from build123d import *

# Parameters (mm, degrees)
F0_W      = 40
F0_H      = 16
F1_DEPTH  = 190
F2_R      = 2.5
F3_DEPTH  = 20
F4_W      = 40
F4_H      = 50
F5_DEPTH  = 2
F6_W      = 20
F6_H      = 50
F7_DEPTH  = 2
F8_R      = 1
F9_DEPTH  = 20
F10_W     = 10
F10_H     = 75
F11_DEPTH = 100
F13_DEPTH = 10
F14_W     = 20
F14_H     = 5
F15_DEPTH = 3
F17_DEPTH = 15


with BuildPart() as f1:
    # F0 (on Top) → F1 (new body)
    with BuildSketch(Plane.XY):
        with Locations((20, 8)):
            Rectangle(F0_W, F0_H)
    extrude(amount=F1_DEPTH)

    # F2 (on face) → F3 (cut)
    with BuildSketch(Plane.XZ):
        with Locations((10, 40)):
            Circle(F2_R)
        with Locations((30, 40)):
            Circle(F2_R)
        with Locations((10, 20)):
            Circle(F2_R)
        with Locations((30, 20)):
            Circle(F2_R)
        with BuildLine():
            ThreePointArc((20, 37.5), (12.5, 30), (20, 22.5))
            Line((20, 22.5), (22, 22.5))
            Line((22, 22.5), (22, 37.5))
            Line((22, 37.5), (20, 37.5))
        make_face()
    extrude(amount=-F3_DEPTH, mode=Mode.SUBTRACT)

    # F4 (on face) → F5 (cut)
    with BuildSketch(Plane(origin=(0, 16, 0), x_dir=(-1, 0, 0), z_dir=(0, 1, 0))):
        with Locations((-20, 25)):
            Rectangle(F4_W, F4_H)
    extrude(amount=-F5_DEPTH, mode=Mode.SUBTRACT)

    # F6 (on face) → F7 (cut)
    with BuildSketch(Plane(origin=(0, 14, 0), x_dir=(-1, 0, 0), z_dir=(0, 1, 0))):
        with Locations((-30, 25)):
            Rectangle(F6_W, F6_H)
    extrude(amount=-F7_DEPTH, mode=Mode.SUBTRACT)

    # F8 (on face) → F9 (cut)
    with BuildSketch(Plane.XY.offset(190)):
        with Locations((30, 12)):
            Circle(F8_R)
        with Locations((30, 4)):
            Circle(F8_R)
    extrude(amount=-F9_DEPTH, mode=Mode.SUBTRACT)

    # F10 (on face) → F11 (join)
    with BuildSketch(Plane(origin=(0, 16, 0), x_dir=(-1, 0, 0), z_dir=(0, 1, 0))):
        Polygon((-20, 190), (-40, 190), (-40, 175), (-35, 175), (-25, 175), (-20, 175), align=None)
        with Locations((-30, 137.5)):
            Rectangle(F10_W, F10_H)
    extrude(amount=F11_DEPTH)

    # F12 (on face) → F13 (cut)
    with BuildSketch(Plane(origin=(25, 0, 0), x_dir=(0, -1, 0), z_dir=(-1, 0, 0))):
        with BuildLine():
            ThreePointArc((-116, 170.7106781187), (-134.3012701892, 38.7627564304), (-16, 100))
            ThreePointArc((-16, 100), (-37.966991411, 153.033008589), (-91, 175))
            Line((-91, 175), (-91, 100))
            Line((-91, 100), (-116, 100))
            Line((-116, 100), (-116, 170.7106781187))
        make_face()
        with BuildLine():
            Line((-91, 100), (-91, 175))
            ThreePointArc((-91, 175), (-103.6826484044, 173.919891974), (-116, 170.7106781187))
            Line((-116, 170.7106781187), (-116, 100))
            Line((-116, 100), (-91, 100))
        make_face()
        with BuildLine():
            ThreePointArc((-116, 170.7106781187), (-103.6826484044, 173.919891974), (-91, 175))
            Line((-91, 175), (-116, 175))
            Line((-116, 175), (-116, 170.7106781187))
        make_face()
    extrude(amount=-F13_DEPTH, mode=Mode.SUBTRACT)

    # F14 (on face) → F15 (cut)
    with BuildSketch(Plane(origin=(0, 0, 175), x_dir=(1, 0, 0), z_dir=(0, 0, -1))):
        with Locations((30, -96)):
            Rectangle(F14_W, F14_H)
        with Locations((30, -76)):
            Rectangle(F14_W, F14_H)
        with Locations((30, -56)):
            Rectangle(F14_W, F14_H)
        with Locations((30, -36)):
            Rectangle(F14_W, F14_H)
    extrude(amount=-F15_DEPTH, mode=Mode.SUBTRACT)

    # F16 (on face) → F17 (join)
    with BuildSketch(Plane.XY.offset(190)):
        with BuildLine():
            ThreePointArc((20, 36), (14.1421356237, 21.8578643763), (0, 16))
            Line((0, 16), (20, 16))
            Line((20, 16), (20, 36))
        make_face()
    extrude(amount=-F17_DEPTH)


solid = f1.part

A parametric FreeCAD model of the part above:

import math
import FreeCAD as App
import Part
import Sketcher
Q = App.Units.Quantity

doc = App.newDocument("Part")
params = doc.addObject("Spreadsheet::Sheet", "Params")
for row, (alias, value) in enumerate([
    ("sketch1_width", "40 mm"),
    ("sketch1_height", "16 mm"),
    ("pad1_length", "190 mm"),
    ("sketch2_diameter", "5 mm"),
    ("sketch2_radius", "7.5 mm"),
    ("sketch2_width", "2 mm"),
    ("pocket1_length", "20 mm"),
    ("sketch3_width", "40 mm"),
    ("sketch3_height", "50 mm"),
    ("pocket2_length", "2 mm"),
    ("sketch4_width", "20 mm"),
    ("sketch4_height", "50 mm"),
    ("pocket3_length", "2 mm"),
    ("sketch5_diameter", "2 mm"),
    ("pocket4_length", "20 mm"),
    ("sketch6_width", "20 mm"),
    ("sketch6_width2", "5 mm"),
    ("sketch6_height", "15 mm"),
    ("sketch6_height2", "75 mm"),
    ("pad2_length", "100 mm"),
    ("sketch7_radius", "75 mm"),
    ("sketch7_width", "25 mm"),
    ("pocket5_length", "10 mm"),
    ("sketch8_width", "20 mm"),
    ("sketch8_height", "5 mm"),
    ("pocket6_length", "3 mm"),
    ("sketch9_radius", "20 mm"),
    ("pad3_length", "15 mm"),
], start=1):
    params.set(f"A{row}", alias)
    params.set(f"B{row}", "=" + value)
    params.setAlias(f"B{row}", alias)

body = doc.addObject("PartDesign::Body", "Body")

# Sketch on XY plane
sketch1 = body.newObject("Sketcher::SketchObject", "Sketch")
sketch1.AttachmentSupport = (doc.getObject("XY_Plane"), [""])
sketch1.MapMode = "FlatFace"
sketch1.addGeometry([
    Part.LineSegment(App.Vector(0, 16, 0), App.Vector(0, 0, 0)),
    Part.LineSegment(App.Vector(0, 0, 0), App.Vector(40, 0, 0)),
    Part.LineSegment(App.Vector(40, 0, 0), App.Vector(40, 16, 0)),
    Part.LineSegment(App.Vector(40, 16, 0), App.Vector(0, 16, 0)),
], False)
sketch1.addConstraint([
    Sketcher.Constraint("Coincident", 0, 2, 1, 1),
    Sketcher.Constraint("Coincident", 1, 2, 2, 1),
    Sketcher.Constraint("Coincident", 2, 2, 3, 1),
    Sketcher.Constraint("Coincident", 3, 2, 0, 1),
    Sketcher.Constraint("Vertical", 0),
    Sketcher.Constraint("Horizontal", 1),
    Sketcher.Constraint("Vertical", 2),
    Sketcher.Constraint("Horizontal", 3),
    Sketcher.Constraint("Coincident", 0, 2, -1, 1),
    Sketcher.Constraint("DistanceX", 1, 1, 1, 2, Q("40 mm")),
    Sketcher.Constraint("DistanceY", 0, 2, 0, 1, Q("16 mm")),
])
sketch1.setExpression("Constraints[9]", "Params.sketch1_width")
sketch1.setExpression("Constraints[10]", "Params.sketch1_height")
pad1 = body.newObject("PartDesign::Pad", "Pad")
pad1.Profile = sketch1
pad1.setExpression("Length", "Params.pad1_length")

# Sketch on XZ plane
sketch2 = body.newObject("Sketcher::SketchObject", "Sketch001")
sketch2.AttachmentSupport = (doc.getObject("XZ_Plane"), [""])
sketch2.MapMode = "FlatFace"
sketch2.addGeometry([
    Part.Circle(App.Vector(10, 40, 0), App.Vector(0, 0, 1), 2.5),  # 0
    Part.Circle(App.Vector(30, 40, 0), App.Vector(0, 0, 1), 2.5),  # 1
    Part.Circle(App.Vector(10, 20, 0), App.Vector(0, 0, 1), 2.5),  # 2
    Part.Circle(App.Vector(30, 20, 0), App.Vector(0, 0, 1), 2.5),  # 3
    Part.ArcOfCircle(Part.Circle(App.Vector(20, 30, 0), App.Vector(0, 0, 1), 7.5), math.radians(90), math.radians(270)),  # 4
    Part.LineSegment(App.Vector(20, 22.5, 0), App.Vector(22, 22.5, 0)),  # 5
    Part.LineSegment(App.Vector(22, 22.5, 0), App.Vector(22, 37.5, 0)),  # 6
    Part.LineSegment(App.Vector(22, 37.5, 0), App.Vector(20, 37.5, 0)),  # 7
], False)
sketch2.addConstraint([
    Sketcher.Constraint("Tangent", 4, 2, 5, 1),
    Sketcher.Constraint("Coincident", 5, 2, 6, 1),
    Sketcher.Constraint("Coincident", 6, 2, 7, 1),
    Sketcher.Constraint("Tangent", 7, 2, 4, 1),
    Sketcher.Constraint("Horizontal", 5),
    Sketcher.Constraint("Vertical", 6),
    Sketcher.Constraint("Horizontal", 7),
    Sketcher.Constraint("Equal", 0, 1),
    Sketcher.Constraint("Equal", 1, 2),
    Sketcher.Constraint("Equal", 2, 3),
    Sketcher.Constraint("Horizontal", 0, 3, 1, 3),
    Sketcher.Constraint("Horizontal", 2, 3, 3, 3),
    Sketcher.Constraint("Vertical", 0, 3, 2, 3),
    Sketcher.Constraint("Vertical", 1, 3, 3, 3),
    Sketcher.Constraint("Diameter", 0, Q("5 mm")),
    Sketcher.Constraint("Radius", 4, Q("7.5 mm")),
    Sketcher.Constraint("DistanceX", 5, 1, 5, 2, Q("2 mm")),
    Sketcher.Constraint("DistanceX", -1, 1, 0, 3, Q("10 mm")),
    Sketcher.Constraint("DistanceY", -1, 1, 0, 3, Q("40 mm")),
    Sketcher.Constraint("DistanceX", -1, 1, 1, 3, Q("30 mm")),
    Sketcher.Constraint("DistanceY", -1, 1, 2, 3, Q("20 mm")),
    Sketcher.Constraint("DistanceX", -1, 1, 4, 3, Q("20 mm")),
    Sketcher.Constraint("DistanceY", -1, 1, 4, 3, Q("30 mm")),
])
sketch2.setExpression("Constraints[14]", "Params.sketch2_diameter")
sketch2.setExpression("Constraints[15]", "Params.sketch2_radius")
sketch2.setExpression("Constraints[16]", "Params.sketch2_width")
pocket1 = body.newObject("PartDesign::Pocket", "Pocket")
pocket1.Profile = sketch2
pocket1.setExpression("Length", "Params.pocket1_length")

# Sketch on XZ plane
sketch3 = body.newObject("Sketcher::SketchObject", "Sketch002")
sketch3.AttachmentSupport = (doc.getObject("XZ_Plane"), [""])
sketch3.MapMode = "FlatFace"
sketch3.AttachmentOffset = App.Placement(App.Vector(0, 0, -16), App.Rotation())
sketch3.addGeometry([
    Part.LineSegment(App.Vector(40, 50, 0), App.Vector(40, 0, 0)),
    Part.LineSegment(App.Vector(40, 0, 0), App.Vector(0, 0, 0)),
    Part.LineSegment(App.Vector(0, 0, 0), App.Vector(0, 50, 0)),
    Part.LineSegment(App.Vector(0, 50, 0), App.Vector(40, 50, 0)),
], False)
sketch3.addConstraint([
    Sketcher.Constraint("Coincident", 0, 2, 1, 1),
    Sketcher.Constraint("Coincident", 1, 2, 2, 1),
    Sketcher.Constraint("Coincident", 2, 2, 3, 1),
    Sketcher.Constraint("Coincident", 3, 2, 0, 1),
    Sketcher.Constraint("Vertical", 0),
    Sketcher.Constraint("Horizontal", 1),
    Sketcher.Constraint("Vertical", 2),
    Sketcher.Constraint("Horizontal", 3),
    Sketcher.Constraint("Coincident", 1, 2, -1, 1),
    Sketcher.Constraint("DistanceX", 1, 2, 1, 1, Q("40 mm")),
    Sketcher.Constraint("DistanceY", 0, 2, 0, 1, Q("50 mm")),
])
sketch3.setExpression("Constraints[9]", "Params.sketch3_width")
sketch3.setExpression("Constraints[10]", "Params.sketch3_height")
pocket2 = body.newObject("PartDesign::Pocket", "Pocket001")
pocket2.Profile = sketch3
pocket2.setExpression("Length", "Params.pocket2_length")
pocket2.Reversed = True

# Sketch on XZ plane
sketch4 = body.newObject("Sketcher::SketchObject", "Sketch003")
sketch4.AttachmentSupport = (doc.getObject("XZ_Plane"), [""])
sketch4.MapMode = "FlatFace"
sketch4.AttachmentOffset = App.Placement(App.Vector(0, 0, -14), App.Rotation())
sketch4.addGeometry([
    Part.LineSegment(App.Vector(40, 50, 0), App.Vector(40, 0, 0)),
    Part.LineSegment(App.Vector(40, 0, 0), App.Vector(20, 0, 0)),
    Part.LineSegment(App.Vector(20, 0, 0), App.Vector(20, 50, 0)),
    Part.LineSegment(App.Vector(20, 50, 0), App.Vector(40, 50, 0)),
], False)
sketch4.addConstraint([
    Sketcher.Constraint("Coincident", 0, 2, 1, 1),
    Sketcher.Constraint("Coincident", 1, 2, 2, 1),
    Sketcher.Constraint("Coincident", 2, 2, 3, 1),
    Sketcher.Constraint("Coincident", 3, 2, 0, 1),
    Sketcher.Constraint("Vertical", 0),
    Sketcher.Constraint("Horizontal", 1),
    Sketcher.Constraint("Vertical", 2),
    Sketcher.Constraint("Horizontal", 3),
    Sketcher.Constraint("PointOnObject", 0, 2, -1),
    Sketcher.Constraint("DistanceX", 1, 2, 1, 1, Q("20 mm")),
    Sketcher.Constraint("DistanceY", 0, 2, 0, 1, Q("50 mm")),
    Sketcher.Constraint("DistanceX", -1, 1, 0, 2, Q("40 mm")),
])
sketch4.setExpression("Constraints[9]", "Params.sketch4_width")
sketch4.setExpression("Constraints[10]", "Params.sketch4_height")
pocket3 = body.newObject("PartDesign::Pocket", "Pocket002")
pocket3.Profile = sketch4
pocket3.setExpression("Length", "Params.pocket3_length")
pocket3.Reversed = True

# Sketch on XY plane
sketch5 = body.newObject("Sketcher::SketchObject", "Sketch004")
sketch5.AttachmentSupport = (doc.getObject("XY_Plane"), [""])
sketch5.MapMode = "FlatFace"
sketch5.AttachmentOffset = App.Placement(App.Vector(0, 0, 190), App.Rotation())
sketch5.addGeometry([
    Part.Circle(App.Vector(30, 12, 0), App.Vector(0, 0, 1), 1),
    Part.Circle(App.Vector(30, 4, 0), App.Vector(0, 0, 1), 1),
], False)
sketch5.addConstraint([
    Sketcher.Constraint("Equal", 0, 1),
    Sketcher.Constraint("Vertical", 0, 3, 1, 3),
    Sketcher.Constraint("Diameter", 0, Q("2 mm")),
    Sketcher.Constraint("DistanceX", -1, 1, 0, 3, Q("30 mm")),
    Sketcher.Constraint("DistanceY", -1, 1, 0, 3, Q("12 mm")),
    Sketcher.Constraint("DistanceY", -1, 1, 1, 3, Q("4 mm")),
])
sketch5.setExpression("Constraints[2]", "Params.sketch5_diameter")
pocket4 = body.newObject("PartDesign::Pocket", "Pocket003")
pocket4.Profile = sketch5
pocket4.setExpression("Length", "Params.pocket4_length")

# Sketch on XZ plane
sketch6 = body.newObject("Sketcher::SketchObject", "Sketch005")
sketch6.AttachmentSupport = (doc.getObject("XZ_Plane"), [""])
sketch6.MapMode = "FlatFace"
sketch6.AttachmentOffset = App.Placement(App.Vector(0, 0, -16), App.Rotation())
sketch6.addGeometry([
    Part.LineSegment(App.Vector(20, 190, 0), App.Vector(40, 190, 0)),  # 0
    Part.LineSegment(App.Vector(40, 190, 0), App.Vector(40, 175, 0)),  # 1
    Part.LineSegment(App.Vector(40, 175, 0), App.Vector(35, 175, 0)),  # 2
    Part.LineSegment(App.Vector(35, 175, 0), App.Vector(35, 100, 0)),  # 3
    Part.LineSegment(App.Vector(35, 100, 0), App.Vector(25, 100, 0)),  # 4
    Part.LineSegment(App.Vector(25, 100, 0), App.Vector(25, 175, 0)),  # 5
    Part.LineSegment(App.Vector(25, 175, 0), App.Vector(20, 175, 0)),  # 6
    Part.LineSegment(App.Vector(20, 175, 0), App.Vector(20, 190, 0)),  # 7
], False)
sketch6.addConstraint([
    Sketcher.Constraint("Coincident", 0, 2, 1, 1),
    Sketcher.Constraint("Coincident", 1, 2, 2, 1),
    Sketcher.Constraint("Coincident", 2, 2, 3, 1),
    Sketcher.Constraint("Coincident", 3, 2, 4, 1),
    Sketcher.Constraint("Coincident", 4, 2, 5, 1),
    Sketcher.Constraint("Coincident", 5, 2, 6, 1),
    Sketcher.Constraint("Coincident", 6, 2, 7, 1),
    Sketcher.Constraint("Coincident", 7, 2, 0, 1),
    Sketcher.Constraint("Horizontal", 0),
    Sketcher.Constraint("Vertical", 1),
    Sketcher.Constraint("Horizontal", 2),
    Sketcher.Constraint("Vertical", 3),
    Sketcher.Constraint("Horizontal", 4),
    Sketcher.Constraint("Vertical", 5),
    Sketcher.Constraint("Horizontal", 6),
    Sketcher.Constraint("Vertical", 7),
    Sketcher.Constraint("Horizontal", 2, 2, 5, 2),
    Sketcher.Constraint("Equal", 2, 6),
    Sketcher.Constraint("DistanceX", 0, 1, 0, 2, Q("20 mm")),
    Sketcher.Constraint("DistanceX", 2, 2, 2, 1, Q("5 mm")),
    Sketcher.Constraint("DistanceY", 1, 2, 1, 1, Q("15 mm")),
    Sketcher.Constraint("DistanceY", 3, 2, 3, 1, Q("75 mm")),
    Sketcher.Constraint("DistanceX", -1, 1, 0, 2, Q("40 mm")),
    Sketcher.Constraint("DistanceY", -1, 1, 0, 2, Q("190 mm")),
])
sketch6.setExpression("Constraints[18]", "Params.sketch6_width")
sketch6.setExpression("Constraints[19]", "Params.sketch6_width2")
sketch6.setExpression("Constraints[20]", "Params.sketch6_height")
sketch6.setExpression("Constraints[21]", "Params.sketch6_height2")
pad2 = body.newObject("PartDesign::Pad", "Pad001")
pad2.Profile = sketch6
pad2.setExpression("Length", "Params.pad2_length")
pad2.Reversed = True

# Sketch on YZ plane
sketch7 = body.newObject("Sketcher::SketchObject", "Sketch006")
sketch7.AttachmentSupport = (doc.getObject("YZ_Plane"), [""])
sketch7.MapMode = "FlatFace"
sketch7.AttachmentOffset = App.Placement(App.Vector(0, 0, 25), App.Rotation())
sketch7.addGeometry([
    Part.ArcOfCircle(Part.Circle(App.Vector(91, 100, 0), App.Vector(0, 0, 1), 75), math.radians(90), math.radians(430.528779)),
    Part.LineSegment(App.Vector(91, 175, 0), App.Vector(116, 175, 0)),
    Part.LineSegment(App.Vector(116, 175, 0), App.Vector(116, 170.710678, 0)),
], False)
sketch7.addConstraint([
    Sketcher.Constraint("Tangent", 0, 1, 1, 1),
    Sketcher.Constraint("Coincident", 1, 2, 2, 1),
    Sketcher.Constraint("Coincident", 2, 2, 0, 2),
    Sketcher.Constraint("Horizontal", 1),
    Sketcher.Constraint("Vertical", 2),
    Sketcher.Constraint("Radius", 0, Q("75 mm")),
    Sketcher.Constraint("DistanceX", 1, 1, 1, 2, Q("25 mm")),
    Sketcher.Constraint("DistanceX", -1, 1, 0, 3, Q("91 mm")),
    Sketcher.Constraint("DistanceY", -1, 1, 0, 3, Q("100 mm")),
])
sketch7.setExpression("Constraints[5]", "Params.sketch7_radius")
sketch7.setExpression("Constraints[6]", "Params.sketch7_width")
pocket5 = body.newObject("PartDesign::Pocket", "Pocket004")
pocket5.Profile = sketch7
pocket5.setExpression("Length", "Params.pocket5_length")
pocket5.Reversed = True

# Sketch on XY plane
sketch8 = body.newObject("Sketcher::SketchObject", "Sketch007")
sketch8.AttachmentSupport = (doc.getObject("XY_Plane"), [""])
sketch8.MapMode = "FlatFace"
sketch8.AttachmentOffset = App.Placement(App.Vector(0, 0, 175), App.Rotation())
sketch8.addGeometry([
    Part.LineSegment(App.Vector(20, 93.5, 0), App.Vector(20, 98.5, 0)),  # 0
    Part.LineSegment(App.Vector(20, 98.5, 0), App.Vector(40, 98.5, 0)),  # 1
    Part.LineSegment(App.Vector(40, 98.5, 0), App.Vector(40, 93.5, 0)),  # 2
    Part.LineSegment(App.Vector(40, 93.5, 0), App.Vector(20, 93.5, 0)),  # 3
    Part.LineSegment(App.Vector(20, 73.5, 0), App.Vector(20, 78.5, 0)),  # 4
    Part.LineSegment(App.Vector(20, 78.5, 0), App.Vector(40, 78.5, 0)),  # 5
    Part.LineSegment(App.Vector(40, 78.5, 0), App.Vector(40, 73.5, 0)),  # 6
    Part.LineSegment(App.Vector(40, 73.5, 0), App.Vector(20, 73.5, 0)),  # 7
    Part.LineSegment(App.Vector(20, 53.5, 0), App.Vector(20, 58.5, 0)),  # 8
    Part.LineSegment(App.Vector(20, 58.5, 0), App.Vector(40, 58.5, 0)),  # 9
    Part.LineSegment(App.Vector(40, 58.5, 0), App.Vector(40, 53.5, 0)),  # 10
    Part.LineSegment(App.Vector(40, 53.5, 0), App.Vector(20, 53.5, 0)),  # 11
    Part.LineSegment(App.Vector(20, 33.5, 0), App.Vector(20, 38.5, 0)),  # 12
    Part.LineSegment(App.Vector(20, 38.5, 0), App.Vector(40, 38.5, 0)),  # 13
    Part.LineSegment(App.Vector(40, 38.5, 0), App.Vector(40, 33.5, 0)),  # 14
    Part.LineSegment(App.Vector(40, 33.5, 0), App.Vector(20, 33.5, 0)),  # 15
], False)
sketch8.addConstraint([
    Sketcher.Constraint("Coincident", 0, 2, 1, 1),
    Sketcher.Constraint("Coincident", 1, 2, 2, 1),
    Sketcher.Constraint("Coincident", 2, 2, 3, 1),
    Sketcher.Constraint("Coincident", 3, 2, 0, 1),
    Sketcher.Constraint("Coincident", 4, 2, 5, 1),
    Sketcher.Constraint("Coincident", 5, 2, 6, 1),
    Sketcher.Constraint("Coincident", 6, 2, 7, 1),
    Sketcher.Constraint("Coincident", 7, 2, 4, 1),
    Sketcher.Constraint("Coincident", 8, 2, 9, 1),
    Sketcher.Constraint("Coincident", 9, 2, 10, 1),
    Sketcher.Constraint("Coincident", 10, 2, 11, 1),
    Sketcher.Constraint("Coincident", 11, 2, 8, 1),
    Sketcher.Constraint("Coincident", 12, 2, 13, 1),
    Sketcher.Constraint("Coincident", 13, 2, 14, 1),
    Sketcher.Constraint("Coincident", 14, 2, 15, 1),
    Sketcher.Constraint("Coincident", 15, 2, 12, 1),
    Sketcher.Constraint("Vertical", 0),
    Sketcher.Constraint("Horizontal", 1),
    Sketcher.Constraint("Vertical", 2),
    Sketcher.Constraint("Horizontal", 3),
    Sketcher.Constraint("Vertical", 4),
    Sketcher.Constraint("Horizontal", 5),
    Sketcher.Constraint("Vertical", 6),
    Sketcher.Constraint("Horizontal", 7),
    Sketcher.Constraint("Vertical", 8),
    Sketcher.Constraint("Horizontal", 9),
    Sketcher.Constraint("Vertical", 10),
    Sketcher.Constraint("Horizontal", 11),
    Sketcher.Constraint("Vertical", 12),
    Sketcher.Constraint("Horizontal", 13),
    Sketcher.Constraint("Vertical", 14),
    Sketcher.Constraint("Horizontal", 15),
    Sketcher.Constraint("Vertical", 3, 2, 4, 2),
    Sketcher.Constraint("Vertical", 2, 2, 5, 2),
    Sketcher.Constraint("Vertical", 7, 2, 8, 2),
    Sketcher.Constraint("Vertical", 6, 2, 9, 2),
    Sketcher.Constraint("Vertical", 11, 2, 12, 2),
    Sketcher.Constraint("Vertical", 10, 2, 13, 2),
    Sketcher.Constraint("Equal", 2, 4),
    Sketcher.Constraint("Equal", 6, 8),
    Sketcher.Constraint("Equal", 10, 12),
    Sketcher.Constraint("DistanceX", 1, 1, 1, 2, Q("20 mm")),
    Sketcher.Constraint("DistanceY", 0, 1, 0, 2, Q("5 mm")),
    Sketcher.Constraint("DistanceX", -1, 1, 0, 2, Q("20 mm")),
    Sketcher.Constraint("DistanceY", 4, 2, 3, 2, Q("15 mm")),
    Sketcher.Constraint("DistanceY", 8, 2, 7, 2, Q("15 mm")),
    Sketcher.Constraint("DistanceY", 12, 2, 11, 2, Q("15 mm")),
    Sketcher.Constraint("DistanceY", -1, 1, 0, 2, Q("98.5 mm")),
])
sketch8.setExpression("Constraints[41]", "Params.sketch8_width")
sketch8.setExpression("Constraints[42]", "Params.sketch8_height")
pocket6 = body.newObject("PartDesign::Pocket", "Pocket005")
pocket6.Profile = sketch8
pocket6.setExpression("Length", "Params.pocket6_length")
pocket6.Reversed = True

# Sketch on XY plane
sketch9 = body.newObject("Sketcher::SketchObject", "Sketch008")
sketch9.AttachmentSupport = (doc.getObject("XY_Plane"), [""])
sketch9.MapMode = "FlatFace"
sketch9.AttachmentOffset = App.Placement(App.Vector(0, 0, 190), App.Rotation())
sketch9.addGeometry([
    Part.ArcOfCircle(Part.Circle(App.Vector(0, 36, 0), App.Vector(0, 0, 1), 20), math.radians(-90), math.radians(0)),
    Part.LineSegment(App.Vector(0, 16, 0), App.Vector(20, 16, 0)),
    Part.LineSegment(App.Vector(20, 16, 0), App.Vector(20, 36, 0)),
], False)
sketch9.addConstraint([
    Sketcher.Constraint("Tangent", 0, 1, 1, 1),
    Sketcher.Constraint("Coincident", 1, 2, 2, 1),
    Sketcher.Constraint("Tangent", 2, 2, 0, 2),
    Sketcher.Constraint("Horizontal", 1),
    Sketcher.Constraint("Vertical", 2),
    Sketcher.Constraint("PointOnObject", 0, 3, -2),
    Sketcher.Constraint("Radius", 0, Q("20 mm")),
    Sketcher.Constraint("DistanceY", -1, 1, 0, 3, Q("36 mm")),
])
sketch9.setExpression("Constraints[6]", "Params.sketch9_radius")
pad3 = body.newObject("PartDesign::Pad", "Pad002")
pad3.Profile = sketch9
pad3.setExpression("Length", "Params.pad3_length")
pad3.Reversed = True

doc.recompute()
